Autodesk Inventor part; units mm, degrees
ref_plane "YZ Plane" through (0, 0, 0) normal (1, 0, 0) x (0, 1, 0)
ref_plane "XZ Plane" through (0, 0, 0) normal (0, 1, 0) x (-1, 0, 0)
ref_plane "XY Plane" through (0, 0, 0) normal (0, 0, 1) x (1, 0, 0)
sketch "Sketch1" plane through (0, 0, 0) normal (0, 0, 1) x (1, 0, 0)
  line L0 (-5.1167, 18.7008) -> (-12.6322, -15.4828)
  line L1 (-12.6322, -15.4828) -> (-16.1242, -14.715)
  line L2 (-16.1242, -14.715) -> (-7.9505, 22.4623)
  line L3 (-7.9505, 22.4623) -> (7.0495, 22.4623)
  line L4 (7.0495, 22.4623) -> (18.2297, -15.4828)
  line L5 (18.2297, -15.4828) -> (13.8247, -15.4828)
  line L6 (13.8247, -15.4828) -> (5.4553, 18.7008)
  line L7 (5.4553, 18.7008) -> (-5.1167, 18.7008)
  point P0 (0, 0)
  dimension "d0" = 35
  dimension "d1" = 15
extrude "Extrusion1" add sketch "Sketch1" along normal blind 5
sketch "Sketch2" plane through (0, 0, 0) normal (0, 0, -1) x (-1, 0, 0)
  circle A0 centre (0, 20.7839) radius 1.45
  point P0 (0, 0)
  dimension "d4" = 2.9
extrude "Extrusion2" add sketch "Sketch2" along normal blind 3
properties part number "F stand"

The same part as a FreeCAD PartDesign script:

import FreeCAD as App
import Part
import Sketcher

V = App.Vector
Q = App.Units.Quantity


def add_polygon(sketch, points):
    """Adds a closed chain of lines whose ends are joined by coincident constraints."""
    first, n = sketch.GeometryCount, len(points)
    for a, b in zip(points, points[1:] + points[:1]):
        sketch.addGeometry(Part.LineSegment(App.Vector(*a, 0), App.Vector(*b, 0)), False)
    for i in range(n):
        sketch.addConstraint(Sketcher.Constraint("Coincident", first + i, 2, first + (i + 1) % n, 1))

doc = App.newDocument("Part")
body = doc.addObject("PartDesign::Body", "Body")

# Sketch on XY plane
sketch1 = body.newObject("Sketcher::SketchObject", "Sketch")
sketch1.AttachmentSupport = (doc.getObject("XY_Plane"), [""])
sketch1.MapMode = "FlatFace"
add_polygon(sketch1, [(-12.6322, -15.4828), (-5.1167, 18.7008), (5.4553, 18.7008), (13.8247, -15.4828), (18.2297, -15.4828), (7.0495, 22.4623), (-7.9505, 22.4623), (-16.1242, -14.715)])  # lines 0-7
sketch1.addConstraint([
    Sketcher.Constraint("Horizontal", 1),
    Sketcher.Constraint("Horizontal", 3),
    Sketcher.Constraint("Horizontal", 5),
    Sketcher.Constraint("DistanceX", 5, 2, 5, 1, Q("15 mm")),
    Sketcher.Constraint("Distance", 0, Q("35 mm")),
    Sketcher.Constraint("DistanceX", 1, 1, 1, 2, Q("10.572 mm")),
    Sketcher.Constraint("DistanceX", 3, 1, 3, 2, Q("4.405 mm")),
    Sketcher.Constraint("Distance", 4, Q("39.558 mm")),
    Sketcher.Constraint("DistanceY", 6, 2, -1, 1, Q("14.715 mm")),
    Sketcher.Constraint("DistanceY", 2, 2, 4, 2, Q("37.945 mm")),
    Sketcher.Constraint("DistanceX", 6, 2, 2, 2, Q("29.949 mm")),
    Sketcher.Constraint("DistanceX", 6, 2, 7, 2, Q("3.492 mm")),
    Sketcher.Constraint("DistanceY", 7, 2, 5, 2, Q("37.945 mm")),
    Sketcher.Constraint("Distance", 2, Q("35.1933 mm")),
    Sketcher.Constraint("Distance", 6, Q("38.0652 mm")),
    Sketcher.Constraint("DistanceX", 0, 2, -1, 1, Q("5.1167 mm")),
])
pad1 = body.newObject("PartDesign::Pad", "Pad")
pad1.Profile = sketch1
pad1.Length = 5

# Sketch on XY plane
sketch2 = body.newObject("Sketcher::SketchObject", "Sketch001")
sketch2.AttachmentSupport = (doc.getObject("XY_Plane"), [""])
sketch2.MapMode = "FlatFace"
sketch2.addGeometry(Part.Circle(V(0, 20.8, 0), V(0, 0, 1), 1.4), False)
sketch2.addConstraint([
    Sketcher.Constraint("PointOnObject", 0, 3, -2),
    Sketcher.Constraint("Diameter", 0, Q("2.9 mm")),
    Sketcher.Constraint("DistanceY", -1, 1, 0, 3, Q("20.784 mm")),
])
pad2 = body.newObject("PartDesign::Pad", "Pad001")
pad2.Profile = sketch2
pad2.Length = 3
pad2.Reversed = True

doc.recompute()
